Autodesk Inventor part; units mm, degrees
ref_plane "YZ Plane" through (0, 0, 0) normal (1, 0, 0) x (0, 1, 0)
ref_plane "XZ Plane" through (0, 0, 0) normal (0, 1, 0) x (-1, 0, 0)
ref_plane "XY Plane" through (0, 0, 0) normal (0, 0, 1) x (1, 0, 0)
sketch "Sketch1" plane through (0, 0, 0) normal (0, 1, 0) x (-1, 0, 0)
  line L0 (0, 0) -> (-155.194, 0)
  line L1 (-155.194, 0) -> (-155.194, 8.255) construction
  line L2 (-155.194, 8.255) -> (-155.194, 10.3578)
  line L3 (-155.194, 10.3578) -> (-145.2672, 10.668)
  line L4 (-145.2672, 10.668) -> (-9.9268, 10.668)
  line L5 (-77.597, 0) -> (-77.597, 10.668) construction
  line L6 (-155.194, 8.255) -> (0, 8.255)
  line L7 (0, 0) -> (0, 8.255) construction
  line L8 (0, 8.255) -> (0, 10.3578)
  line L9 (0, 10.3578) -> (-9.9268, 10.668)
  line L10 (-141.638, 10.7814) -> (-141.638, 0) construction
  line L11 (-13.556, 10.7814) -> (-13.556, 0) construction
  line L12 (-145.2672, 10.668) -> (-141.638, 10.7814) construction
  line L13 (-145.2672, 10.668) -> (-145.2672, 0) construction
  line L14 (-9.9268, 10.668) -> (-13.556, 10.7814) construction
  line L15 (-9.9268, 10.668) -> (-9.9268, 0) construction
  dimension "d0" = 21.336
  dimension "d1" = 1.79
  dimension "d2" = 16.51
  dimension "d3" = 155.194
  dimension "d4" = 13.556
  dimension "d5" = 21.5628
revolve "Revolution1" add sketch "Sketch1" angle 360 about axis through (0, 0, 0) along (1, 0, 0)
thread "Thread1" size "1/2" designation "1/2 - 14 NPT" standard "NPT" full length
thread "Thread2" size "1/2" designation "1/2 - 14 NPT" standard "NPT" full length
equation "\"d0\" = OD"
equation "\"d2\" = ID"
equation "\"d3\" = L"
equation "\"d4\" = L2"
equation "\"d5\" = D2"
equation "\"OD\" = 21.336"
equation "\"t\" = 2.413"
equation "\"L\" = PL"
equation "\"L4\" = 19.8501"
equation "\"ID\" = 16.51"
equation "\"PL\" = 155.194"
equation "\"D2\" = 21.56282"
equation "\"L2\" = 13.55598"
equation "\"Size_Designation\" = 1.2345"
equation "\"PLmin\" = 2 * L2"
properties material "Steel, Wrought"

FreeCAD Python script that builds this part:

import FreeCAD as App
import Part
import Sketcher
from FreeCAD import Vector
Q = App.Units.Quantity


def add_polygon(sketch, points):
    """Adds a closed chain of lines whose ends are joined by coincident constraints."""
    first, n = sketch.GeometryCount, len(points)
    for a, b in zip(points, points[1:] + points[:1]):
        sketch.addGeometry(Part.LineSegment(App.Vector(*a, 0), App.Vector(*b, 0)), False)
    for i in range(n):
        sketch.addConstraint(Sketcher.Constraint("Coincident", first + i, 2, first + (i + 1) % n, 1))

doc = App.newDocument("Part")
params = doc.addObject("Spreadsheet::Sheet", "Params")
for row, (alias, value) in enumerate([
    ("sketch1_width", "6.11 in"),
    ("sketch1_length", "0.391 in"),
    ("revolution_angle", "360 deg"),
], start=1):
    params.set(f"A{row}", alias)
    params.set(f"B{row}", "=" + value)
    params.setAlias(f"B{row}", alias)

body = doc.addObject("PartDesign::Body", "Body")

# Sketch on XZ plane
sketch1 = body.newObject("Sketcher::SketchObject", "Sketch")
sketch1.AttachmentSupport = (doc.getObject("XZ_Plane"), [""])
sketch1.MapMode = "FlatFace"
add_polygon(sketch1, [(155.2, 10.4), (155.2, 8.3), (0, 8.3), (0, 10.4), (9.9, 10.7), (145.3, 10.7)])  # lines 0-5
sketch1.addConstraint([
    Sketcher.Constraint("Vertical", 0),
    Sketcher.Constraint("Horizontal", 1),
    Sketcher.Constraint("Vertical", 2),
    Sketcher.Constraint("Horizontal", 4),
    Sketcher.Constraint("PointOnObject", 1, 2, -2),
    Sketcher.Constraint("Horizontal", 2, 2, 5, 2),
    Sketcher.Constraint("Equal", 3, 5),
    Sketcher.Constraint("DistanceX", 1, 2, 1, 1, Q("6.11 in")),
    Sketcher.Constraint("Angle", 3, Q("1.7898 deg")),
    Sketcher.Constraint("DistanceY", -1, 1, 3, 2, Q("0.42 in")),
    Sketcher.Constraint("Distance", 3, Q("0.391 in")),
    Sketcher.Constraint("DistanceY", -1, 1, 0, 2, Q("0.325 in")),
])
sketch1.setExpression("Constraints[13]", "Params.sketch1_width")
sketch1.setExpression("Constraints[16]", "Params.sketch1_length")
revolution = body.newObject("PartDesign::Revolution", "Revolution")
revolution.Profile = sketch1
revolution.ReferenceAxis = (sketch1, ["H_Axis"])
revolution.setExpression("Angle", "Params.revolution_angle")

doc.recompute()
